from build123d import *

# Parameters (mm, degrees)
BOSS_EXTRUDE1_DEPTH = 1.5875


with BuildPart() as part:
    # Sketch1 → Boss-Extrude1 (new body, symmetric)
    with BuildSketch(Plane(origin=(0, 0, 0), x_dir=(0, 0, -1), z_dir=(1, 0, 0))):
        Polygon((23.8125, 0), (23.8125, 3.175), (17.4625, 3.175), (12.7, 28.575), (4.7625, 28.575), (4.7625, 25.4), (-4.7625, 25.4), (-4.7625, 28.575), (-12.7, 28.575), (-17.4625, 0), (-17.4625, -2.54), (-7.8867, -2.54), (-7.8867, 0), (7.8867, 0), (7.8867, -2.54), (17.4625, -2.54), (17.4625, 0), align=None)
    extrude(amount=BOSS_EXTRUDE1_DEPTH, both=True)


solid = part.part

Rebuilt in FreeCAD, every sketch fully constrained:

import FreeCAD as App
import Part
import Sketcher
from FreeCAD import Vector
Q = App.Units.Quantity


def add_polygon(sketch, points):
    """Adds a closed chain of lines whose ends are joined by coincident constraints."""
    first, n = sketch.GeometryCount, len(points)
    for a, b in zip(points, points[1:] + points[:1]):
        sketch.addGeometry(Part.LineSegment(App.Vector(*a, 0), App.Vector(*b, 0)), False)
    for i in range(n):
        sketch.addConstraint(Sketcher.Constraint("Coincident", first + i, 2, first + (i + 1) % n, 1))

doc = App.newDocument("Part")
body = doc.addObject("PartDesign::Body", "Body")

# Sketch on YZ plane
sketch1 = body.newObject("Sketcher::SketchObject", "Sketch")
sketch1.AttachmentSupport = (doc.getObject("YZ_Plane"), [""])
sketch1.MapMode = "FlatFace"
add_polygon(sketch1, [(0, -23.8), (3.2, -23.8), (3.2, -17.5), (28.6, -12.7), (28.6, -4.8), (25.4, -4.8), (25.4, 4.8), (28.6, 4.8), (28.6, 12.7), (0, 17.5), (-2.5, 17.5), (-2.5, 7.9), (0, 7.9), (0, -7.9), (-2.5, -7.9), (-2.5, -17.5), (0, -17.5)])  # lines 0-16
sketch1.addConstraint([
    Sketcher.Constraint("Horizontal", 0),
    Sketcher.Constraint("Vertical", 1),
    Sketcher.Constraint("Vertical", 3),
    Sketcher.Constraint("Horizontal", 4),
    Sketcher.Constraint("Vertical", 5),
    Sketcher.Constraint("Horizontal", 6),
    Sketcher.Constraint("Vertical", 7),
    Sketcher.Constraint("Horizontal", 9),
    Sketcher.Constraint("Vertical", 10),
    Sketcher.Constraint("Horizontal", 11),
    Sketcher.Constraint("Vertical", 12),
    Sketcher.Constraint("Horizontal", 13),
    Sketcher.Constraint("Vertical", 14),
    Sketcher.Constraint("Horizontal", 15),
    Sketcher.Constraint("Vertical", 16),
    Sketcher.Constraint("Symmetric", 11, 2, 12, 2, -1, 1),
    Sketcher.Constraint("Symmetric", 8, 2, 15, 2, -1, 1),
    Sketcher.Constraint("Symmetric", 3, 2, 6, 2, -1),
    Sketcher.Constraint("PointOnObject", 8, 2, -2),
    Sketcher.Constraint("Horizontal", 1, 2, 14, 2),
    Sketcher.Constraint("Vertical", 10, 2, 13, 2),
    Sketcher.Constraint("Equal", 0, 4),
    Sketcher.Constraint("Equal", 3, 7),
    Sketcher.Constraint("DistanceX", 9, 2, 9, 1, Q("0.1 in")),
    Sketcher.Constraint("DistanceX", -1, 1, 4, 2, Q("1 in")),
    Sketcher.Constraint("DistanceY", 2, 2, 7, 2, Q("1 in")),
    Sketcher.Constraint("DistanceY", 1, 1, 1, 2, Q("0.25 in")),
    Sketcher.Constraint("DistanceY", 1, 2, 3, 2, Q("0.5 in")),
    Sketcher.Constraint("DistanceX", 0, 1, 0, 2, Q("0.125 in")),
    Sketcher.Constraint("DistanceY", 3, 1, 3, 2, Q("0.3125 in")),
    Sketcher.Constraint("DistanceY", 10, 2, 10, 1, Q("0.377 in")),
])
pad1 = body.newObject("PartDesign::Pad", "Pad")
pad1.Profile = sketch1
pad1.Length = Q("0.125 in")
pad1.Midplane = True

doc.recompute()
